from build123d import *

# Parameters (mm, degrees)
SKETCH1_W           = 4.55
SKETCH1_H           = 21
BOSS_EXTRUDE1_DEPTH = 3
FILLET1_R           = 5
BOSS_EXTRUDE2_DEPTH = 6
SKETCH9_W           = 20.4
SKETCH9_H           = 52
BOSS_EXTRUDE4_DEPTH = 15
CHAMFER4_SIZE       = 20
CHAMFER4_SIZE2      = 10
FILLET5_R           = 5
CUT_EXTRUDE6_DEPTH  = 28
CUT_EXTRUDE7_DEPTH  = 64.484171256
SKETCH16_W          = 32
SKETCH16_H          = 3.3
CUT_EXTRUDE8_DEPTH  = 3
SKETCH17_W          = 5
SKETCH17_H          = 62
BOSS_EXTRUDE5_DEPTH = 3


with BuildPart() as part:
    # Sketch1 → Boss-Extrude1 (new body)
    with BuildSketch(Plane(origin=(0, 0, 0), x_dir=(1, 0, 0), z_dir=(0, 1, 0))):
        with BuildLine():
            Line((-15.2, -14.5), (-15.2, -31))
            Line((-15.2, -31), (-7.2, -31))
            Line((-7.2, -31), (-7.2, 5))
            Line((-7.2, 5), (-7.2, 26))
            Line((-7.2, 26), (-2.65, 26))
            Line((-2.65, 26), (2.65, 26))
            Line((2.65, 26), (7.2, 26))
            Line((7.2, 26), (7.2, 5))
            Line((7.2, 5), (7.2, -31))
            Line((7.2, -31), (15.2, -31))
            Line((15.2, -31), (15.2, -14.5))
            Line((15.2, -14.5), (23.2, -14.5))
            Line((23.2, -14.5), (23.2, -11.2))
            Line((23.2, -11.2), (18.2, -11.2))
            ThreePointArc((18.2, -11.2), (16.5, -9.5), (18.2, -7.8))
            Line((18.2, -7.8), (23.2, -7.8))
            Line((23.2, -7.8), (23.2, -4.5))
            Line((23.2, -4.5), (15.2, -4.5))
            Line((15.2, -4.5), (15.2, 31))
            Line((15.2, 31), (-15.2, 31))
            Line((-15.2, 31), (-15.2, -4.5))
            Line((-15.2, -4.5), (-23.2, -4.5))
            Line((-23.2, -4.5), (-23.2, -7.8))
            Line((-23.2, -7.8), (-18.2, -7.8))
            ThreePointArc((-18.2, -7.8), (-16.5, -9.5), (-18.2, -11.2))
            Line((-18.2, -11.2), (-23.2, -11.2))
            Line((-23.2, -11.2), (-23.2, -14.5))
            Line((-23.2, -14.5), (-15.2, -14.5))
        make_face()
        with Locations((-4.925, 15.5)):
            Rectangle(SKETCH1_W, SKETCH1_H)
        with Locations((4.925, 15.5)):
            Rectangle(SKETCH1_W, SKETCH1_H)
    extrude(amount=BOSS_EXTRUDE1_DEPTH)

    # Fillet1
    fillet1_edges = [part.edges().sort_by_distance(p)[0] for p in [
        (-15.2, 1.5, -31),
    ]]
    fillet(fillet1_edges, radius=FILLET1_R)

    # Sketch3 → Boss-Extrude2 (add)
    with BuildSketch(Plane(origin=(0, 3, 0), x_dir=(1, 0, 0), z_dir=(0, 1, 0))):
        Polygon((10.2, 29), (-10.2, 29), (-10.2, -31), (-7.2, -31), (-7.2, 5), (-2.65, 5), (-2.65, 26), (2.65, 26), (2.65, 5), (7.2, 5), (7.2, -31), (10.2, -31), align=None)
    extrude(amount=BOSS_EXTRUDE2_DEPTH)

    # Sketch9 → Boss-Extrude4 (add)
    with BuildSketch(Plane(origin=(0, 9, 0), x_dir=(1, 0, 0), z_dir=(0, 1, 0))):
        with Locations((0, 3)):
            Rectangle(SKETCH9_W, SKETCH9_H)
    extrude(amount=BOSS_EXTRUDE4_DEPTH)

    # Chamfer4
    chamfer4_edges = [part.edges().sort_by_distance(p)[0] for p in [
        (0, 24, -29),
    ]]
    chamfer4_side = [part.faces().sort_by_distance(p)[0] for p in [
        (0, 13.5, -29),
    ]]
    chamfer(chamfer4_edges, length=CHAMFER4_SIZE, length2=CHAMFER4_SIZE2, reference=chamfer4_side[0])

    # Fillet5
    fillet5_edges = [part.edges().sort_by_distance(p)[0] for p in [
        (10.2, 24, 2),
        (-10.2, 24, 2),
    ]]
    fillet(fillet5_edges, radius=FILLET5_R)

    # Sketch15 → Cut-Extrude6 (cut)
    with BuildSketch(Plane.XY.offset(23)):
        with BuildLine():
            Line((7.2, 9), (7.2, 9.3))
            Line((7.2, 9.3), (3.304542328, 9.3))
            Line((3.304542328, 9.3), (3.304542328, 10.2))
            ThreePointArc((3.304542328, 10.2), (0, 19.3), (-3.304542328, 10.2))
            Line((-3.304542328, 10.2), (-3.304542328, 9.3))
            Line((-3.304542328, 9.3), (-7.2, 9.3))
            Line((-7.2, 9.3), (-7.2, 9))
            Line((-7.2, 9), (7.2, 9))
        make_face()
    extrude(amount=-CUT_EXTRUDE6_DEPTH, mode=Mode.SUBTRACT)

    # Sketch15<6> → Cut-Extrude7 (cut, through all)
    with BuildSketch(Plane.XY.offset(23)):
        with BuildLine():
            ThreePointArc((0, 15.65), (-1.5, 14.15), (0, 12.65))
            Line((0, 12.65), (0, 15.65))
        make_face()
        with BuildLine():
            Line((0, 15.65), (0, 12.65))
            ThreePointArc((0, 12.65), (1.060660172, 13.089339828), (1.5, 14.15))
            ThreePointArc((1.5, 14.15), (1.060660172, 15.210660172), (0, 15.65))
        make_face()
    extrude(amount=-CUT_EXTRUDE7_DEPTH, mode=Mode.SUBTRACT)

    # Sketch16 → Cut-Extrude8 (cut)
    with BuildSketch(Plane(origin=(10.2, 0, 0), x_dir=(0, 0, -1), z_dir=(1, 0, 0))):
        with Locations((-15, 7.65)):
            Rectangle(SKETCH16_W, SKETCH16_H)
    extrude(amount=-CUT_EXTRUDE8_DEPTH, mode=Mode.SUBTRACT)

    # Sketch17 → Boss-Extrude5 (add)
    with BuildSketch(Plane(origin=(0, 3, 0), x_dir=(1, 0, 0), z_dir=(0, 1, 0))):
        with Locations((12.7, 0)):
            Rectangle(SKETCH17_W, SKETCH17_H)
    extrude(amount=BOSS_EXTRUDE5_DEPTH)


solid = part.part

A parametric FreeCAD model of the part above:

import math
import FreeCAD as App
import Part
import Sketcher
Q = App.Units.Quantity


def edges_at(feature, points):
    """Names of the edges that pass closest to the given points."""
    edges = feature.Shape.Edges
    near = lambda p: min(range(len(edges)), key=lambda i: edges[i].distToShape(Part.Vertex(*p))[0])
    return sorted({f"Edge{near(p) + 1}" for p in points})

doc = App.newDocument("Part")
body = doc.addObject("PartDesign::Body", "Body")

sketch1 = body.newObject("Sketcher::SketchObject", "Sketch")
sketch1.AttachmentSupport = (doc.getObject("XZ_Plane"), [""])
sketch1.MapMode = "FlatFace"
sketch1.addGeometry([
    Part.LineSegment(App.Vector(-15.2, 14.5, 0), App.Vector(-15.2, 31, 0)),
    Part.LineSegment(App.Vector(-15.2, 31, 0), App.Vector(-7.2, 31, 0)),
    Part.LineSegment(App.Vector(-7.2, 31, 0), App.Vector(-7.2, -5, 0)),
    Part.LineSegment(App.Vector(-7.2, -5, 0), App.Vector(-2.6, -5, 0)),
    Part.LineSegment(App.Vector(-2.6, -5, 0), App.Vector(-2.6, -26, 0)),
    Part.LineSegment(App.Vector(-2.6, -26, 0), App.Vector(2.6, -26, 0)),
    Part.LineSegment(App.Vector(2.6, -26, 0), App.Vector(2.6, -5, 0)),
    Part.LineSegment(App.Vector(2.6, -5, 0), App.Vector(7.2, -5, 0)),
    Part.LineSegment(App.Vector(7.2, -5, 0), App.Vector(7.2, 31, 0)),
    Part.LineSegment(App.Vector(7.2, 31, 0), App.Vector(15.2, 31, 0)),
    Part.LineSegment(App.Vector(15.2, 31, 0), App.Vector(15.2, 14.5, 0)),
    Part.LineSegment(App.Vector(15.2, 14.5, 0), App.Vector(23.2, 14.5, 0)),
    Part.LineSegment(App.Vector(23.2, 14.5, 0), App.Vector(23.2, 11.2, 0)),
    Part.LineSegment(App.Vector(23.2, 11.2, 0), App.Vector(18.2, 11.2, 0)),
    Part.ArcOfCircle(Part.Circle(App.Vector(18.2, 9.5, 0), App.Vector(0, 0, 1), 1.7), math.radians(90), math.radians(270)),
    Part.LineSegment(App.Vector(18.2, 7.8, 0), App.Vector(23.2, 7.8, 0)),
    Part.LineSegment(App.Vector(23.2, 7.8, 0), App.Vector(23.2, 4.5, 0)),
    Part.LineSegment(App.Vector(23.2, 4.5, 0), App.Vector(15.2, 4.5, 0)),
    Part.LineSegment(App.Vector(15.2, 4.5, 0), App.Vector(15.2, -31, 0)),
    Part.LineSegment(App.Vector(15.2, -31, 0), App.Vector(-15.2, -31, 0)),
    Part.LineSegment(App.Vector(-15.2, -31, 0), App.Vector(-15.2, 4.5, 0)),
    Part.LineSegment(App.Vector(-15.2, 4.5, 0), App.Vector(-23.2, 4.5, 0)),
    Part.LineSegment(App.Vector(-23.2, 4.5, 0), App.Vector(-23.2, 7.8, 0)),
    Part.LineSegment(App.Vector(-23.2, 7.8, 0), App.Vector(-18.2, 7.8, 0)),
    Part.ArcOfCircle(Part.Circle(App.Vector(-18.2, 9.5, 0), App.Vector(0, 0, 1), 1.7), math.radians(-90), math.radians(90)),
    Part.LineSegment(App.Vector(-18.2, 11.2, 0), App.Vector(-23.2, 11.2, 0)),
    Part.LineSegment(App.Vector(-23.2, 11.2, 0), App.Vector(-23.2, 14.5, 0)),
    Part.LineSegment(App.Vector(-23.2, 14.5, 0), App.Vector(-15.2, 14.5, 0)),
], False)
sketch1.addConstraint([
    Sketcher.Constraint("Coincident", 0, 2, 1, 1),
    Sketcher.Constraint("Coincident", 1, 2, 2, 1),
    Sketcher.Constraint("Coincident", 2, 2, 3, 1),
    Sketcher.Constraint("Coincident", 3, 2, 4, 1),
    Sketcher.Constraint("Coincident", 4, 2, 5, 1),
    Sketcher.Constraint("Coincident", 5, 2, 6, 1),
    Sketcher.Constraint("Coincident", 6, 2, 7, 1),
    Sketcher.Constraint("Coincident", 7, 2, 8, 1),
    Sketcher.Constraint("Coincident", 8, 2, 9, 1),
    Sketcher.Constraint("Coincident", 9, 2, 10, 1),
    Sketcher.Constraint("Coincident", 10, 2, 11, 1),
    Sketcher.Constraint("Coincident", 11, 2, 12, 1),
    Sketcher.Constraint("Coincident", 12, 2, 13, 1),
    Sketcher.Constraint("Tangent", 13, 2, 14, 1),
    Sketcher.Constraint("Tangent", 14, 2, 15, 1),
    Sketcher.Constraint("Coincident", 15, 2, 16, 1),
    Sketcher.Constraint("Coincident", 16, 2, 17, 1),
    Sketcher.Constraint("Coincident", 17, 2, 18, 1),
    Sketcher.Constraint("Coincident", 18, 2, 19, 1),
    Sketcher.Constraint("Coincident", 19, 2, 20, 1),
    Sketcher.Constraint("Coincident", 20, 2, 21, 1),
    Sketcher.Constraint("Coincident", 21, 2, 22, 1),
    Sketcher.Constraint("Coincident", 22, 2, 23, 1),
    Sketcher.Constraint("Tangent", 23, 2, 24, 1),
    Sketcher.Constraint("Tangent", 24, 2, 25, 1),
    Sketcher.Constraint("Coincident", 25, 2, 26, 1),
    Sketcher.Constraint("Coincident", 26, 2, 27, 1),
    Sketcher.Constraint("Coincident", 27, 2, 0, 1),
    Sketcher.Constraint("Vertical", 0),
    Sketcher.Constraint("Horizontal", 1),
    Sketcher.Constraint("Vertical", 2),
    Sketcher.Constraint("Horizontal", 3),
    Sketcher.Constraint("Vertical", 4),
    Sketcher.Constraint("Horizontal", 5),
    Sketcher.Constraint("Vertical", 6),
    Sketcher.Constraint("Horizontal", 7),
    Sketcher.Constraint("Vertical", 8),
    Sketcher.Constraint("Horizontal", 9),
    Sketcher.Constraint("Vertical", 10),
    Sketcher.Constraint("Horizontal", 11),
    Sketcher.Constraint("Vertical", 12),
    Sketcher.Constraint("Horizontal", 13),
    Sketcher.Constraint("Horizontal", 15),
    Sketcher.Constraint("Vertical", 16),
    Sketcher.Constraint("Horizontal", 17),
    Sketcher.Constraint("Vertical", 18),
    Sketcher.Constraint("Horizontal", 19),
    Sketcher.Constraint("Vertical", 20),
    Sketcher.Constraint("Horizontal", 21),
    Sketcher.Constraint("Vertical", 22),
    Sketcher.Constraint("Horizontal", 23),
    Sketcher.Constraint("Horizontal", 25),
    Sketcher.Constraint("Vertical", 26),
    Sketcher.Constraint("Horizontal", 27),
    Sketcher.Constraint("Equal", 14, 24),
    Sketcher.Constraint("Symmetric", 0, 2, 18, 2, -1, 1),
    Sketcher.Constraint("Symmetric", 9, 2, 19, 2, -1, 1),
    Sketcher.Constraint("Symmetric", 14, 3, 24, 3, -2),
    Sketcher.Constraint("Symmetric", 3, 2, 6, 2, -2),
    Sketcher.Constraint("Symmetric", 17, 2, 20, 2, -2),
    Sketcher.Constraint("Symmetric", 11, 2, 26, 2, -2),
    Sketcher.Constraint("Vertical", 12, 2, 15, 2),
    Sketcher.Constraint("Vertical", 22, 2, 25, 2),
    Sketcher.Constraint("Equal", 3, 7),
    Sketcher.Constraint("Equal", 9, 11),
    Sketcher.Constraint("Equal", 12, 16),
    Sketcher.Constraint("Radius", 14, Q("1.7 mm")),
    Sketcher.Constraint("DistanceX", 1, 1, 1, 2, Q("8 mm")),
    Sketcher.Constraint("DistanceX", 13, 2, 13, 1, Q("5 mm")),
    Sketcher.Constraint("DistanceY", 2, 2, 2, 1, Q("36 mm")),
    Sketcher.Constraint("DistanceY", 4, 2, 4, 1, Q("21 mm")),
    Sketcher.Constraint("DistanceX", 5, 1, 5, 2, Q("5.3 mm")),
    Sketcher.Constraint("DistanceX", 19, 2, 19, 1, Q("30.4 mm")),
    Sketcher.Constraint("DistanceY", 0, 1, 0, 2, Q("16.5 mm")),
    Sketcher.Constraint("DistanceY", 12, 2, 12, 1, Q("3.3 mm")),
    Sketcher.Constraint("DistanceY", 18, 2, 18, 1, Q("35.5 mm")),
])
pad1 = body.newObject("PartDesign::Pad", "Pad")
pad1.Profile = sketch1
pad1.Length = 3
pad1.Reversed = True
doc.recompute()

fillet = body.newObject("PartDesign::Fillet", "Fillet")
fillet.Base = (pad1, edges_at(pad1, [(-15.2, 1.5, -31)]))
fillet.Radius = 5

sketch2 = body.newObject("Sketcher::SketchObject", "Sketch001")
sketch2.AttachmentSupport = (doc.getObject("XZ_Plane"), [""])
sketch2.MapMode = "FlatFace"
sketch2.AttachmentOffset = App.Placement(App.Vector(0, 0, -3), App.Rotation())
sketch2.addGeometry([
    Part.LineSegment(App.Vector(10.2, -29, 0), App.Vector(-10.2, -29, 0)),
    Part.LineSegment(App.Vector(-10.2, -29, 0), App.Vector(-10.2, 31, 0)),
    Part.LineSegment(App.Vector(-10.2, 31, 0), App.Vector(-7.2, 31, 0)),
    Part.LineSegment(App.Vector(-7.2, 31, 0), App.Vector(-7.2, -5, 0)),
    Part.LineSegment(App.Vector(-7.2, -5, 0), App.Vector(-2.6, -5, 0)),
    Part.LineSegment(App.Vector(-2.6, -5, 0), App.Vector(-2.6, -26, 0)),
    Part.LineSegment(App.Vector(-2.6, -26, 0), App.Vector(2.6, -26, 0)),
    Part.LineSegment(App.Vector(2.6, -26, 0), App.Vector(2.6, -5, 0)),
    Part.LineSegment(App.Vector(2.6, -5, 0), App.Vector(7.2, -5, 0)),
    Part.LineSegment(App.Vector(7.2, -5, 0), App.Vector(7.2, 31, 0)),
    Part.LineSegment(App.Vector(7.2, 31, 0), App.Vector(10.2, 31, 0)),
    Part.LineSegment(App.Vector(10.2, 31, 0), App.Vector(10.2, -29, 0)),
], False)
sketch2.addConstraint([
    Sketcher.Constraint("Coincident", 0, 2, 1, 1),
    Sketcher.Constraint("Coincident", 1, 2, 2, 1),
    Sketcher.Constraint("Coincident", 2, 2, 3, 1),
    Sketcher.Constraint("Coincident", 3, 2, 4, 1),
    Sketcher.Constraint("Coincident", 4, 2, 5, 1),
    Sketcher.Constraint("Coincident", 5, 2, 6, 1),
    Sketcher.Constraint("Coincident", 6, 2, 7, 1),
    Sketcher.Constraint("Coincident", 7, 2, 8, 1),
    Sketcher.Constraint("Coincident", 8, 2, 9, 1),
    Sketcher.Constraint("Coincident", 9, 2, 10, 1),
    Sketcher.Constraint("Coincident", 10, 2, 11, 1),
    Sketcher.Constraint("Coincident", 11, 2, 0, 1),
    Sketcher.Constraint("Horizontal", 0),
    Sketcher.Constraint("Vertical", 1),
    Sketcher.Constraint("Horizontal", 2),
    Sketcher.Constraint("Vertical", 3),
    Sketcher.Constraint("Horizontal", 4),
    Sketcher.Constraint("Vertical", 5),
    Sketcher.Constraint("Horizontal", 6),
    Sketcher.Constraint("Vertical", 7),
    Sketcher.Constraint("Horizontal", 8),
    Sketcher.Constraint("Vertical", 9),
    Sketcher.Constraint("Horizontal", 10),
    Sketcher.Constraint("Vertical", 11),
    Sketcher.Constraint("Symmetric", 4, 2, 7, 2, -2),
    Sketcher.Constraint("Symmetric", 2, 2, 9, 2, -2),
    Sketcher.Constraint("Equal", 2, 10),
    Sketcher.Constraint("DistanceX", 2, 1, 2, 2, Q("3 mm")),
    Sketcher.Constraint("DistanceY", 1, 1, 1, 2, Q("60 mm")),
    Sketcher.Constraint("DistanceY", 3, 2, 3, 1, Q("36 mm")),
    Sketcher.Constraint("DistanceY", 5, 2, 5, 1, Q("21 mm")),
    Sketcher.Constraint("DistanceX", 0, 2, 0, 1, Q("20.4 mm")),
    Sketcher.Constraint("DistanceX", 6, 1, 6, 2, Q("5.3 mm")),
    Sketcher.Constraint("DistanceY", 0, 2, -1, 1, Q("29 mm")),
])
pad2 = body.newObject("PartDesign::Pad", "Pad001")
pad2.Profile = sketch2
pad2.Length = 6
pad2.Reversed = True

sketch3 = body.newObject("Sketcher::SketchObject", "Sketch002")
sketch3.AttachmentSupport = (doc.getObject("XZ_Plane"), [""])
sketch3.MapMode = "FlatFace"
sketch3.AttachmentOffset = App.Placement(App.Vector(0, 0, -9), App.Rotation())
sketch3.addGeometry([
    Part.LineSegment(App.Vector(-10, -29, 0), App.Vector(-10, 23, 0)),
    Part.LineSegment(App.Vector(-10, 23, 0), App.Vector(10, 23, 0)),
    Part.LineSegment(App.Vector(10, 23, 0), App.Vector(10, -29, 0)),
    Part.LineSegment(App.Vector(10, -29, 0), App.Vector(-10, -29, 0)),
], False)
sketch3.addConstraint([
    Sketcher.Constraint("Coincident", 0, 2, 1, 1),
    Sketcher.Constraint("Coincident", 1, 2, 2, 1),
    Sketcher.Constraint("Coincident", 2, 2, 3, 1),
    Sketcher.Constraint("Coincident", 3, 2, 0, 1),
    Sketcher.Constraint("Vertical", 0),
    Sketcher.Constraint("Horizontal", 1),
    Sketcher.Constraint("Vertical", 2),
    Sketcher.Constraint("Horizontal", 3),
    Sketcher.Constraint("DistanceY", 0, 1, 0, 2, Q("52 mm")),
    Sketcher.Constraint("DistanceX", 1, 1, 1, 2, Q("20.4 mm")),
    Sketcher.Constraint("DistanceY", -1, 1, 0, 2, Q("23 mm")),
    Sketcher.Constraint("DistanceX", 0, 2, -1, 1, Q("10.2 mm")),
])
pad3 = body.newObject("PartDesign::Pad", "Pad002")
pad3.Profile = sketch3
pad3.Length = 15
pad3.Reversed = True
doc.recompute()

chamfer = body.newObject("PartDesign::Chamfer", "Chamfer")
chamfer.Base = (pad3, edges_at(pad3, [(0, 24, -29)]))
chamfer.ChamferType = "Two distances"
chamfer.Size = 20
chamfer.Size2 = 10
chamfer.FlipDirection = True
doc.recompute()

fillet2 = body.newObject("PartDesign::Fillet", "Fillet001")
fillet2.Base = (chamfer, edges_at(chamfer, [(10.2, 24, 2), (-10.2, 24, 2)]))
fillet2.Radius = 5

sketch4 = body.newObject("Sketcher::SketchObject", "Sketch003")
sketch4.AttachmentSupport = (doc.getObject("XY_Plane"), [""])
sketch4.MapMode = "FlatFace"
sketch4.AttachmentOffset = App.Placement(App.Vector(0, 0, 23), App.Rotation())
sketch4.addGeometry([
    Part.LineSegment(App.Vector(7.2, 9, 0), App.Vector(7.2, 9.3, 0)),
    Part.LineSegment(App.Vector(7.2, 9.3, 0), App.Vector(3.3, 9.3, 0)),
    Part.LineSegment(App.Vector(3.3, 9.3, 0), App.Vector(3.3, 10.2, 0)),
    Part.ArcOfCircle(Part.Circle(App.Vector(0, 14.15, 0), App.Vector(0, 0, 1), 5.15), math.radians(-50), math.radians(230)),
    Part.LineSegment(App.Vector(-3.3, 10.2, 0), App.Vector(-3.3, 9.3, 0)),
    Part.LineSegment(App.Vector(-3.3, 9.3, 0), App.Vector(-7.2, 9.3, 0)),
    Part.LineSegment(App.Vector(-7.2, 9.3, 0), App.Vector(-7.2, 9, 0)),
    Part.LineSegment(App.Vector(-7.2, 9, 0), App.Vector(7.2, 9, 0)),
], False)
sketch4.addConstraint([
    Sketcher.Constraint("Coincident", 0, 2, 1, 1),
    Sketcher.Constraint("Coincident", 1, 2, 2, 1),
    Sketcher.Constraint("Coincident", 2, 2, 3, 1),
    Sketcher.Constraint("Coincident", 3, 2, 4, 1),
    Sketcher.Constraint("Coincident", 4, 2, 5, 1),
    Sketcher.Constraint("Coincident", 5, 2, 6, 1),
    Sketcher.Constraint("Coincident", 6, 2, 7, 1),
    Sketcher.Constraint("Coincident", 7, 2, 0, 1),
    Sketcher.Constraint("Vertical", 0),
    Sketcher.Constraint("Horizontal", 1),
    Sketcher.Constraint("Vertical", 2),
    Sketcher.Constraint("Vertical", 4),
    Sketcher.Constraint("Horizontal", 5),
    Sketcher.Constraint("Vertical", 6),
    Sketcher.Constraint("Horizontal", 7),
    Sketcher.Constraint("Symmetric", 2, 2, 3, 2, -2),
    Sketcher.Constraint("Symmetric", 0, 2, 5, 2, -2),
    Sketcher.Constraint("Radius", 3, Q("5.15 mm")),
    Sketcher.Constraint("DistanceX", 7, 1, 7, 2, Q("14.4 mm")),
    Sketcher.Constraint("DistanceY", 0, 1, 0, 2, Q("0.3 mm")),
    Sketcher.Constraint("DistanceY", 2, 1, 2, 2, Q("0.9 mm")),
    Sketcher.Constraint("DistanceY", -1, 1, 6, 2, Q("9 mm")),
    Sketcher.Constraint("DistanceY", -1, 1, 3, 3, Q("14.15 mm")),
])
pocket1 = body.newObject("PartDesign::Pocket", "Pocket")
pocket1.Profile = sketch4
pocket1.Length = 28

sketch5 = body.newObject("Sketcher::SketchObject", "Sketch004")
sketch5.AttachmentSupport = (doc.getObject("XY_Plane"), [""])
sketch5.MapMode = "FlatFace"
sketch5.AttachmentOffset = App.Placement(App.Vector(0, 0, 23), App.Rotation())
sketch5.addGeometry([
    Part.ArcOfCircle(Part.Circle(App.Vector(0, 14.2, 0), App.Vector(0, 0, 1), 1.5), math.radians(90), math.radians(270)),
    Part.ArcOfCircle(Part.Circle(App.Vector(0, 14.1, 0), App.Vector(0, 0, 1), 1.5), math.radians(-90), math.radians(0)),
    Part.ArcOfCircle(Part.Circle(App.Vector(0, 14.2, 0), App.Vector(0, 0, 1), 1.5), math.radians(0), math.radians(90)),
], False)
sketch5.addConstraint([
    Sketcher.Constraint("Tangent", 0, 2, 1, 1),
    Sketcher.Constraint("Tangent", 1, 2, 2, 1),
    Sketcher.Constraint("Tangent", 2, 2, 0, 1),
    Sketcher.Constraint("PointOnObject", 0, 3, -2),
    Sketcher.Constraint("PointOnObject", 0, 2, -2),
    Sketcher.Constraint("PointOnObject", 2, 2, -2),
    Sketcher.Constraint("Horizontal", 2, 3, 1, 2),
    Sketcher.Constraint("Radius", 0, Q("1.5 mm")),
    Sketcher.Constraint("DistanceY", -1, 1, 0, 3, Q("14.15 mm")),
])
pocket2 = body.newObject("PartDesign::Pocket", "Pocket001")
pocket2.Profile = sketch5
pocket2.Type = "ThroughAll"

sketch6 = body.newObject("Sketcher::SketchObject", "Sketch005")
sketch6.AttachmentSupport = (doc.getObject("YZ_Plane"), [""])
sketch6.MapMode = "FlatFace"
sketch6.AttachmentOffset = App.Placement(App.Vector(0, 0, 10.2), App.Rotation())
sketch6.addGeometry([
    Part.LineSegment(App.Vector(9.3, 31, 0), App.Vector(6, 31, 0)),
    Part.LineSegment(App.Vector(6, 31, 0), App.Vector(6, -1, 0)),
    Part.LineSegment(App.Vector(6, -1, 0), App.Vector(9.3, -1, 0)),
    Part.LineSegment(App.Vector(9.3, -1, 0), App.Vector(9.3, 31, 0)),
], False)
sketch6.addConstraint([
    Sketcher.Constraint("Coincident", 0, 2, 1, 1),
    Sketcher.Constraint("Coincident", 1, 2, 2, 1),
    Sketcher.Constraint("Coincident", 2, 2, 3, 1),
    Sketcher.Constraint("Coincident", 3, 2, 0, 1),
    Sketcher.Constraint("Horizontal", 0),
    Sketcher.Constraint("Vertical", 1),
    Sketcher.Constraint("Horizontal", 2),
    Sketcher.Constraint("Vertical", 3),
    Sketcher.Constraint("DistanceY", 1, 2, 1, 1, Q("32 mm")),
    Sketcher.Constraint("DistanceX", 0, 2, 0, 1, Q("3.3 mm")),
    Sketcher.Constraint("DistanceX", -1, 1, 0, 2, Q("6 mm")),
    Sketcher.Constraint("DistanceY", -1, 1, 0, 2, Q("31 mm")),
])
pocket3 = body.newObject("PartDesign::Pocket", "Pocket002")
pocket3.Profile = sketch6
pocket3.Length = 3

sketch7 = body.newObject("Sketcher::SketchObject", "Sketch006")
sketch7.AttachmentSupport = (doc.getObject("XZ_Plane"), [""])
sketch7.MapMode = "FlatFace"
sketch7.AttachmentOffset = App.Placement(App.Vector(0, 0, -3), App.Rotation())
sketch7.addGeometry([
    Part.LineSegment(App.Vector(10, -31, 0), App.Vector(10, 31, 0)),
    Part.LineSegment(App.Vector(10, 31, 0), App.Vector(15, 31, 0)),
    Part.LineSegment(App.Vector(15, 31, 0), App.Vector(15, -31, 0)),
    Part.LineSegment(App.Vector(15, -31, 0), App.Vector(10, -31, 0)),
], False)
sketch7.addConstraint([
    Sketcher.Constraint("Coincident", 0, 2, 1, 1),
    Sketcher.Constraint("Coincident", 1, 2, 2, 1),
    Sketcher.Constraint("Coincident", 2, 2, 3, 1),
    Sketcher.Constraint("Coincident", 3, 2, 0, 1),
    Sketcher.Constraint("Vertical", 0),
    Sketcher.Constraint("Horizontal", 1),
    Sketcher.Constraint("Vertical", 2),
    Sketcher.Constraint("Horizontal", 3),
    Sketcher.Constraint("DistanceX", 1, 1, 1, 2, Q("5 mm")),
    Sketcher.Constraint("DistanceY", 0, 1, 0, 2, Q("62 mm")),
    Sketcher.Constraint("DistanceY", -1, 1, 0, 2, Q("31 mm")),
    Sketcher.Constraint("DistanceX", -1, 1, 0, 2, Q("10.2 mm")),
])
pad4 = body.newObject("PartDesign::Pad", "Pad003")
pad4.Profile = sketch7
pad4.Length = 3
pad4.Reversed = True

doc.recompute()
